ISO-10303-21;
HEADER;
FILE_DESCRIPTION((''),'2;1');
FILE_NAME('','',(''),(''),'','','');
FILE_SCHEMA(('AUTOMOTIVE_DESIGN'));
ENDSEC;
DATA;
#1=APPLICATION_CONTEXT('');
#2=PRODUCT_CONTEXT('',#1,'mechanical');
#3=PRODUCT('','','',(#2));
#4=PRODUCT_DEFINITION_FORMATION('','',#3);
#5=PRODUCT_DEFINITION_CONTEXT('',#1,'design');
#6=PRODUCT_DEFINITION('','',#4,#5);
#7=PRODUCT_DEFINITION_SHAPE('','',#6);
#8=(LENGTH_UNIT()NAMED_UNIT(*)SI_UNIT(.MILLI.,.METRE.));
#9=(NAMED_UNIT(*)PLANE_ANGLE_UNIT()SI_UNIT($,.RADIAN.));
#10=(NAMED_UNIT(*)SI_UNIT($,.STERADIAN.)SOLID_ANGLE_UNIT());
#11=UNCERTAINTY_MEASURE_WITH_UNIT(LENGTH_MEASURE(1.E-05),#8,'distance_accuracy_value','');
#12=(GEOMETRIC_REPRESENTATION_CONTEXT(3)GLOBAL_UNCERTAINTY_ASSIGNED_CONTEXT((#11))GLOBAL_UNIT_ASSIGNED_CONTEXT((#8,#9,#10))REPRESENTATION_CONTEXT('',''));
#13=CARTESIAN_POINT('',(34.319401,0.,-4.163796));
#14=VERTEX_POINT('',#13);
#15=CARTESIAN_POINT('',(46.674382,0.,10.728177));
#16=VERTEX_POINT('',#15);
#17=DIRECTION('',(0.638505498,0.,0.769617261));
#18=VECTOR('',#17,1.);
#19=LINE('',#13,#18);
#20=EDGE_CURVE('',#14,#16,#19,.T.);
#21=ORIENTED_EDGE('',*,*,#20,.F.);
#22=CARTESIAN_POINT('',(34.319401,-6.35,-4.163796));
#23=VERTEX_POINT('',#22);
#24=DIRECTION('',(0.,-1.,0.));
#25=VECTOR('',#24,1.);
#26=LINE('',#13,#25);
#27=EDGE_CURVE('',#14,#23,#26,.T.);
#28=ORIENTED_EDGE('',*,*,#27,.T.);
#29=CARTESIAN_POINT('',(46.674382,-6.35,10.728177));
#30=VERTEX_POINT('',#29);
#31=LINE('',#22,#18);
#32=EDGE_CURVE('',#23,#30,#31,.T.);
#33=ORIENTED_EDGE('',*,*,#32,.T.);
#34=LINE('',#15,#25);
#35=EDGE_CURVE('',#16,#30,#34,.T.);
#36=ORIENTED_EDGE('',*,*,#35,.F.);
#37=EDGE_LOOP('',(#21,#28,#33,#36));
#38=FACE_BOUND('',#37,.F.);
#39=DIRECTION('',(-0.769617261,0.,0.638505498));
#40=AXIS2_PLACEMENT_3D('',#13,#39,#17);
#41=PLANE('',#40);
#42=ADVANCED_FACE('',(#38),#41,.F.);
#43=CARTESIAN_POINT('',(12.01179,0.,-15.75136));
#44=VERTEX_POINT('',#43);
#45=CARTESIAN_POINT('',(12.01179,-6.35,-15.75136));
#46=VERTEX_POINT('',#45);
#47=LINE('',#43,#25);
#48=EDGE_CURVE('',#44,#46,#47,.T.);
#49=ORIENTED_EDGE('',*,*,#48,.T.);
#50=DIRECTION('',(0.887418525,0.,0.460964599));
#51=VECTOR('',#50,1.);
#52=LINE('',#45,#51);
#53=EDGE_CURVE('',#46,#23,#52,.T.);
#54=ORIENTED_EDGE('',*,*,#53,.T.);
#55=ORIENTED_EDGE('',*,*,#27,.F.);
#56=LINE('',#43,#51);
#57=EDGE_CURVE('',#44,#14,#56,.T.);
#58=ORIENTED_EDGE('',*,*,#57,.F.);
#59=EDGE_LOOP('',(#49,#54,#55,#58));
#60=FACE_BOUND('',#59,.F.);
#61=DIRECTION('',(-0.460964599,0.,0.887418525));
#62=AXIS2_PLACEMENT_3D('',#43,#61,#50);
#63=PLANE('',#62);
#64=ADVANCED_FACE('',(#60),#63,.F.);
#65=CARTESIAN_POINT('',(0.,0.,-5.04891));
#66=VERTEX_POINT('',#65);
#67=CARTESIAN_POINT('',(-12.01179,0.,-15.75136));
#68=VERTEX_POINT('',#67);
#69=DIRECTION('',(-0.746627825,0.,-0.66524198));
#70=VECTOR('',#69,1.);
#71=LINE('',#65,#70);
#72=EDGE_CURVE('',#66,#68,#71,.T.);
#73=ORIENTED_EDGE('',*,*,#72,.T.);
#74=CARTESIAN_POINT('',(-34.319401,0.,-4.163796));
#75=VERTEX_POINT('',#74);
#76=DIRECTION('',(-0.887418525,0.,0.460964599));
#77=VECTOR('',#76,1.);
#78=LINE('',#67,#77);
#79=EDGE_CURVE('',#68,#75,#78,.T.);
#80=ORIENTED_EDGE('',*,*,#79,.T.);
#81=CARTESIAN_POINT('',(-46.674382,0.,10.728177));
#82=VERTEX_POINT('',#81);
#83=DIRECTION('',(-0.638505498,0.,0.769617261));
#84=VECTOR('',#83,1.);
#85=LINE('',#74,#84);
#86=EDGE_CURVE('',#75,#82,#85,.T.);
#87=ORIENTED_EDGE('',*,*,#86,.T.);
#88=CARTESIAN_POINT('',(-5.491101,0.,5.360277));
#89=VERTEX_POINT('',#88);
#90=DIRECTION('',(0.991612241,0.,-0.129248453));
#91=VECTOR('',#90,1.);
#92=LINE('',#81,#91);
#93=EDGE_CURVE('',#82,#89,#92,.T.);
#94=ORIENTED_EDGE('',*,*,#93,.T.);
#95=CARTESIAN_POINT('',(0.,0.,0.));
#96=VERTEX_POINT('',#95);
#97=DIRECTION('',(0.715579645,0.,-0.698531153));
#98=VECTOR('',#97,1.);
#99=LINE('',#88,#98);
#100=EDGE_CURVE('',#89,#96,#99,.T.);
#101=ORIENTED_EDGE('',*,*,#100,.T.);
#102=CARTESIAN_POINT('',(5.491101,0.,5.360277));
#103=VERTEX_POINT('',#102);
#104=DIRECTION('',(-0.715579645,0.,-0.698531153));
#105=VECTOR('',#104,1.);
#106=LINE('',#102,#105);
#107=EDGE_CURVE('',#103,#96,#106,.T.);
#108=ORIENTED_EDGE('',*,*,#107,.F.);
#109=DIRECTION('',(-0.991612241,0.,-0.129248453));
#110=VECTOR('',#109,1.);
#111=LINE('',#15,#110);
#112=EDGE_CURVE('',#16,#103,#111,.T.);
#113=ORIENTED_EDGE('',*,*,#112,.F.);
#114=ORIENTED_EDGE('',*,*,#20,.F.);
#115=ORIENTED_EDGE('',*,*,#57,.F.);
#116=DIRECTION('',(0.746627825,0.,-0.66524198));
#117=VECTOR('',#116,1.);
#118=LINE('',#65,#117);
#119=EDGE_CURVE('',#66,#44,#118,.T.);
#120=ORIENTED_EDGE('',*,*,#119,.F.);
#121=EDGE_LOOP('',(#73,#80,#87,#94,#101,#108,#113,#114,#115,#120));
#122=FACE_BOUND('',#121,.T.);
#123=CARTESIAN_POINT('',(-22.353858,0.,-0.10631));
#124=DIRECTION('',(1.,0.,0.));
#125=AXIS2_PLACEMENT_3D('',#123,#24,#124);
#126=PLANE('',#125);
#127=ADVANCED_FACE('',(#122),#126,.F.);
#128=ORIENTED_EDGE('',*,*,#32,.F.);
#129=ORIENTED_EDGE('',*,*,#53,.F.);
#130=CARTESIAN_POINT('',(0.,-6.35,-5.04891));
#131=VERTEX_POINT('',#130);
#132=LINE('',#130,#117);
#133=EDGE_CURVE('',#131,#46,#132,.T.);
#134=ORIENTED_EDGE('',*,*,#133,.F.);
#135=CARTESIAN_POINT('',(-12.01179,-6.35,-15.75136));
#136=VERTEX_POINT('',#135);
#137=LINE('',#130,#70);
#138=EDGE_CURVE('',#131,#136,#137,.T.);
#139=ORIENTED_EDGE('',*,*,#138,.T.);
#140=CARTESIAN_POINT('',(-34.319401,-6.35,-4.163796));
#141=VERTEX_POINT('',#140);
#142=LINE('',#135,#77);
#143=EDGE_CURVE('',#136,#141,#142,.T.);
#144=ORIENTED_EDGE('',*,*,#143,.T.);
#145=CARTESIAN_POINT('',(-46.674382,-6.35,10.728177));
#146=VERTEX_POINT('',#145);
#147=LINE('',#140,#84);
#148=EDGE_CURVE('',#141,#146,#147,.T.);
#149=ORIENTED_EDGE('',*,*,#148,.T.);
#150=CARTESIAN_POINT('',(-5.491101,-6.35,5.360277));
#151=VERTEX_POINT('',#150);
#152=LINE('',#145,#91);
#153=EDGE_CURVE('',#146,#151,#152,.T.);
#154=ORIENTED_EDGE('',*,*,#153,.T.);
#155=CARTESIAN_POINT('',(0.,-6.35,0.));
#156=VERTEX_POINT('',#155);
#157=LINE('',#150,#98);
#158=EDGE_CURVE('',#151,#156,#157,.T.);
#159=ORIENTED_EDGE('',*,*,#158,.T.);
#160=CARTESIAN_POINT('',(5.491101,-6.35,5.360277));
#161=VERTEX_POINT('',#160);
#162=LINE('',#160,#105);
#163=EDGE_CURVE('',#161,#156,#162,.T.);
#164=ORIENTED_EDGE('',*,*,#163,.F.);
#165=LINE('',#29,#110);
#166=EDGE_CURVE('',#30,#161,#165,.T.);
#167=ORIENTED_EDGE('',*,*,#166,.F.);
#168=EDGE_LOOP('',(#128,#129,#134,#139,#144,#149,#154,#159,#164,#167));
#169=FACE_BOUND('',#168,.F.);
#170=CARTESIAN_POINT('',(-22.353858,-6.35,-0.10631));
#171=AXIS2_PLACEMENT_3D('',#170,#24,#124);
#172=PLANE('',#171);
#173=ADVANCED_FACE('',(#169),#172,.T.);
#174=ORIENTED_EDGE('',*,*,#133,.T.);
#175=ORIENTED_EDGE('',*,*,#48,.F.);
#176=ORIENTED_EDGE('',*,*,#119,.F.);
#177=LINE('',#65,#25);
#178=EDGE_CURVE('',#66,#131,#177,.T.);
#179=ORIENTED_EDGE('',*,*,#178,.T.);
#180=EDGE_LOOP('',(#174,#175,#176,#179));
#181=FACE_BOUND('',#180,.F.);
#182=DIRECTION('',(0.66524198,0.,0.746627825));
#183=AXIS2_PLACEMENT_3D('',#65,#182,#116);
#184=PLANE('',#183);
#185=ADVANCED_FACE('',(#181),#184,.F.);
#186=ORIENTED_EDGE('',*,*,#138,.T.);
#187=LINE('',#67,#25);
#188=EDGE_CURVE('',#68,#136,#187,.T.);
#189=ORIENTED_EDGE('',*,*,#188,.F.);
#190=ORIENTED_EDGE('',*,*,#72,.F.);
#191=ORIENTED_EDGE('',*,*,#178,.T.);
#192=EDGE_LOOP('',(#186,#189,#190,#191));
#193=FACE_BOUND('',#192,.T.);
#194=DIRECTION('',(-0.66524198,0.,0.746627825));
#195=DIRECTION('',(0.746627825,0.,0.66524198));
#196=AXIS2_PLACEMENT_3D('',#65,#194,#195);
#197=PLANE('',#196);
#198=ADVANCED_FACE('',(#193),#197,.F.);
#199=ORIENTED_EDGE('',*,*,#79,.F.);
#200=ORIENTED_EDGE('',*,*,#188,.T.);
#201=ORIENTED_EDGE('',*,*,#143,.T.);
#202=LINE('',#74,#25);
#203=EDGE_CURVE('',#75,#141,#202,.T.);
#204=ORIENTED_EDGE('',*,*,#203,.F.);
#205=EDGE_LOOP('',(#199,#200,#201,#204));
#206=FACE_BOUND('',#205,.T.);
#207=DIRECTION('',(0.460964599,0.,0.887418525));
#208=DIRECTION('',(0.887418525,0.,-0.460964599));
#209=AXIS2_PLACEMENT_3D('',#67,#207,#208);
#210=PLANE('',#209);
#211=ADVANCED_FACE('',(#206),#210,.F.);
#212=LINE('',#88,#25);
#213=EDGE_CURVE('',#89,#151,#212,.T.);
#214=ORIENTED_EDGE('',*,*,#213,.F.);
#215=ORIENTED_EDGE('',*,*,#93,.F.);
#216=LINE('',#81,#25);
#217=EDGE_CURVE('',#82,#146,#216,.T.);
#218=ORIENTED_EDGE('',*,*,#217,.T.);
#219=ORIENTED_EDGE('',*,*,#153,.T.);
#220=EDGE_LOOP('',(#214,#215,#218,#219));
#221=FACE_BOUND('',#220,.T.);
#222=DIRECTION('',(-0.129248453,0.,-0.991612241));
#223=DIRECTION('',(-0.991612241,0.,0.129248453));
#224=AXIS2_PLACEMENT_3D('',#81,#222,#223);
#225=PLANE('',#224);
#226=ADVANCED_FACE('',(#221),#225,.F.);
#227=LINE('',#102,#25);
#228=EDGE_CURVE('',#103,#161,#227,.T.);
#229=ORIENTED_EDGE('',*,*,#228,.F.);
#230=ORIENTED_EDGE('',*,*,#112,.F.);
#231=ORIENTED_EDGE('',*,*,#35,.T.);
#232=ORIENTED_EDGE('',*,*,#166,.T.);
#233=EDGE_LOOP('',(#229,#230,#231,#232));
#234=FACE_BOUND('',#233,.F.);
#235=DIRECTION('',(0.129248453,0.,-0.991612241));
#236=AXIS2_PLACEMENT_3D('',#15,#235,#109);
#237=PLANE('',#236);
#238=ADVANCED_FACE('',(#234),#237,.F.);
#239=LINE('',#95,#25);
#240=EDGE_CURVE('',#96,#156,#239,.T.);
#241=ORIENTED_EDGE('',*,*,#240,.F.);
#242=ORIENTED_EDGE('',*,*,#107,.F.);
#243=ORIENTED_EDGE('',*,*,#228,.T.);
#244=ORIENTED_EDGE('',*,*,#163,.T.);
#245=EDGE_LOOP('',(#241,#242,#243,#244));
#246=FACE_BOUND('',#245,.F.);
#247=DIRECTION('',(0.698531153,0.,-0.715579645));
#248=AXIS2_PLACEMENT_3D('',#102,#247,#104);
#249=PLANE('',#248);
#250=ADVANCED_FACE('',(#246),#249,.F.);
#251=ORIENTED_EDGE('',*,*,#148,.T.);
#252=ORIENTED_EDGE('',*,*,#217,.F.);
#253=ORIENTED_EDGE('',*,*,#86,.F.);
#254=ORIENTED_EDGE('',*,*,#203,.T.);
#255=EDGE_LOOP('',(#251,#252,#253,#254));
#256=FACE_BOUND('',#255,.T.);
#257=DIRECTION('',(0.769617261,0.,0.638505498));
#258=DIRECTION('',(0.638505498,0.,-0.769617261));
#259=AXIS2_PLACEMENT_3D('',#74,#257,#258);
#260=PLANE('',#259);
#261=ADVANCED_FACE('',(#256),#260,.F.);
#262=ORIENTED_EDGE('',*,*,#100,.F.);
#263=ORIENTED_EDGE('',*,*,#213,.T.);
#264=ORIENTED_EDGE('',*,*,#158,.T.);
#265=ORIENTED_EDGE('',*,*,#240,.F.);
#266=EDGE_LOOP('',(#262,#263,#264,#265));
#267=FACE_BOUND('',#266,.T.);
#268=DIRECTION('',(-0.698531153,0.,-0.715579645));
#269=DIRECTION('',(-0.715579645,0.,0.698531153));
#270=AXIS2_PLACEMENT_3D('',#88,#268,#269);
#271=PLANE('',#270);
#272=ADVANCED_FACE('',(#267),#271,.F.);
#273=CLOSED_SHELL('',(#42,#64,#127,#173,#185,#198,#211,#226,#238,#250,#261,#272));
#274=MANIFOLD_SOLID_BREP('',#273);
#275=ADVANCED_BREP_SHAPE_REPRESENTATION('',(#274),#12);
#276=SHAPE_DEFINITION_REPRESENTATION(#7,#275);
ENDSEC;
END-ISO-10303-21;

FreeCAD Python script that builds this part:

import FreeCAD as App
import Part
import Sketcher
Q = App.Units.Quantity

doc = App.newDocument("Part")
body = doc.addObject("PartDesign::Body", "Body")

# Sketch on XZ plane
sketch1 = body.newObject("Sketcher::SketchObject", "Sketch")
sketch1.AttachmentSupport = (doc.getObject("XZ_Plane"), [""])
sketch1.MapMode = "FlatFace"
sketch1.addGeometry([
    Part.LineSegment(App.Vector(47, 11, 0), App.Vector(5, 5, 0)),  # 0
    Part.LineSegment(App.Vector(5, 5, 0), App.Vector(0, 0, 0)),  # 1
    Part.LineSegment(App.Vector(0, 0, 0), App.Vector(0, -5, 0)),  # 2
    Part.LineSegment(App.Vector(0, -5, 0), App.Vector(12, -16, 0)),  # 3
    Part.LineSegment(App.Vector(12, -16, 0), App.Vector(34, -4, 0)),  # 4
    Part.LineSegment(App.Vector(34, -4, 0), App.Vector(47, 11, 0)),  # 5
], False)
sketch1.addConstraint([
    Sketcher.Constraint("Coincident", 0, 2, 1, 1),
    Sketcher.Constraint("Coincident", 1, 2, 2, 1),
    Sketcher.Constraint("Coincident", 2, 2, 3, 1),
    Sketcher.Constraint("Coincident", 3, 2, 4, 1),
    Sketcher.Constraint("Coincident", 4, 2, 5, 1),
    Sketcher.Constraint("Coincident", 5, 2, 0, 1),
    Sketcher.Constraint("Vertical", 2),
    Sketcher.Constraint("Coincident", 1, 2, -1, 1),
    Sketcher.Constraint("DistanceY", 2, 2, 2, 1, Q("5.04891 mm")),
    Sketcher.Constraint("DistanceX", -1, 1, 0, 2, Q("5.491101 mm")),
    Sketcher.Constraint("DistanceX", -1, 1, 4, 2, Q("34.319401 mm")),
    Sketcher.Constraint("DistanceY", 0, 2, 5, 2, Q("5.3679 mm")),
    Sketcher.Constraint("Distance", 0, Q("41.531638 mm")),
    Sketcher.Constraint("Distance", 1, Q("7.673641 mm")),
    Sketcher.Constraint("DistanceX", -1, 1, 3, 2, Q("12.01179 mm")),
    Sketcher.Constraint("DistanceY", 3, 2, -1, 1, Q("15.75136 mm")),
    Sketcher.Constraint("Distance", 4, Q("25.137644 mm")),
])
pad1 = body.newObject("PartDesign::Pad", "Pad")
pad1.Profile = sketch1
pad1.Length = Q("0.25 in")
body2 = doc.addObject("PartDesign::Body", "Body001")
doc.recompute()

body2.BaseFeature = body
doc.recompute()

mirroring = doc.addObject("Part::Mirroring", "Mirroring")
mirroring.Source = body
mirroring.Base = App.Vector(0, 0, 0)
mirroring.Normal = App.Vector(1, 0, 0)
body3 = doc.addObject("PartDesign::Body", "Body002")
body3.BaseFeature = mirroring
boolean = body2.newObject("PartDesign::Boolean", "Boolean")
boolean.Type = "Fuse"
boolean.addObjects([body3])
doc.recompute()
mirroring.Visibility = False

doc.recompute()
